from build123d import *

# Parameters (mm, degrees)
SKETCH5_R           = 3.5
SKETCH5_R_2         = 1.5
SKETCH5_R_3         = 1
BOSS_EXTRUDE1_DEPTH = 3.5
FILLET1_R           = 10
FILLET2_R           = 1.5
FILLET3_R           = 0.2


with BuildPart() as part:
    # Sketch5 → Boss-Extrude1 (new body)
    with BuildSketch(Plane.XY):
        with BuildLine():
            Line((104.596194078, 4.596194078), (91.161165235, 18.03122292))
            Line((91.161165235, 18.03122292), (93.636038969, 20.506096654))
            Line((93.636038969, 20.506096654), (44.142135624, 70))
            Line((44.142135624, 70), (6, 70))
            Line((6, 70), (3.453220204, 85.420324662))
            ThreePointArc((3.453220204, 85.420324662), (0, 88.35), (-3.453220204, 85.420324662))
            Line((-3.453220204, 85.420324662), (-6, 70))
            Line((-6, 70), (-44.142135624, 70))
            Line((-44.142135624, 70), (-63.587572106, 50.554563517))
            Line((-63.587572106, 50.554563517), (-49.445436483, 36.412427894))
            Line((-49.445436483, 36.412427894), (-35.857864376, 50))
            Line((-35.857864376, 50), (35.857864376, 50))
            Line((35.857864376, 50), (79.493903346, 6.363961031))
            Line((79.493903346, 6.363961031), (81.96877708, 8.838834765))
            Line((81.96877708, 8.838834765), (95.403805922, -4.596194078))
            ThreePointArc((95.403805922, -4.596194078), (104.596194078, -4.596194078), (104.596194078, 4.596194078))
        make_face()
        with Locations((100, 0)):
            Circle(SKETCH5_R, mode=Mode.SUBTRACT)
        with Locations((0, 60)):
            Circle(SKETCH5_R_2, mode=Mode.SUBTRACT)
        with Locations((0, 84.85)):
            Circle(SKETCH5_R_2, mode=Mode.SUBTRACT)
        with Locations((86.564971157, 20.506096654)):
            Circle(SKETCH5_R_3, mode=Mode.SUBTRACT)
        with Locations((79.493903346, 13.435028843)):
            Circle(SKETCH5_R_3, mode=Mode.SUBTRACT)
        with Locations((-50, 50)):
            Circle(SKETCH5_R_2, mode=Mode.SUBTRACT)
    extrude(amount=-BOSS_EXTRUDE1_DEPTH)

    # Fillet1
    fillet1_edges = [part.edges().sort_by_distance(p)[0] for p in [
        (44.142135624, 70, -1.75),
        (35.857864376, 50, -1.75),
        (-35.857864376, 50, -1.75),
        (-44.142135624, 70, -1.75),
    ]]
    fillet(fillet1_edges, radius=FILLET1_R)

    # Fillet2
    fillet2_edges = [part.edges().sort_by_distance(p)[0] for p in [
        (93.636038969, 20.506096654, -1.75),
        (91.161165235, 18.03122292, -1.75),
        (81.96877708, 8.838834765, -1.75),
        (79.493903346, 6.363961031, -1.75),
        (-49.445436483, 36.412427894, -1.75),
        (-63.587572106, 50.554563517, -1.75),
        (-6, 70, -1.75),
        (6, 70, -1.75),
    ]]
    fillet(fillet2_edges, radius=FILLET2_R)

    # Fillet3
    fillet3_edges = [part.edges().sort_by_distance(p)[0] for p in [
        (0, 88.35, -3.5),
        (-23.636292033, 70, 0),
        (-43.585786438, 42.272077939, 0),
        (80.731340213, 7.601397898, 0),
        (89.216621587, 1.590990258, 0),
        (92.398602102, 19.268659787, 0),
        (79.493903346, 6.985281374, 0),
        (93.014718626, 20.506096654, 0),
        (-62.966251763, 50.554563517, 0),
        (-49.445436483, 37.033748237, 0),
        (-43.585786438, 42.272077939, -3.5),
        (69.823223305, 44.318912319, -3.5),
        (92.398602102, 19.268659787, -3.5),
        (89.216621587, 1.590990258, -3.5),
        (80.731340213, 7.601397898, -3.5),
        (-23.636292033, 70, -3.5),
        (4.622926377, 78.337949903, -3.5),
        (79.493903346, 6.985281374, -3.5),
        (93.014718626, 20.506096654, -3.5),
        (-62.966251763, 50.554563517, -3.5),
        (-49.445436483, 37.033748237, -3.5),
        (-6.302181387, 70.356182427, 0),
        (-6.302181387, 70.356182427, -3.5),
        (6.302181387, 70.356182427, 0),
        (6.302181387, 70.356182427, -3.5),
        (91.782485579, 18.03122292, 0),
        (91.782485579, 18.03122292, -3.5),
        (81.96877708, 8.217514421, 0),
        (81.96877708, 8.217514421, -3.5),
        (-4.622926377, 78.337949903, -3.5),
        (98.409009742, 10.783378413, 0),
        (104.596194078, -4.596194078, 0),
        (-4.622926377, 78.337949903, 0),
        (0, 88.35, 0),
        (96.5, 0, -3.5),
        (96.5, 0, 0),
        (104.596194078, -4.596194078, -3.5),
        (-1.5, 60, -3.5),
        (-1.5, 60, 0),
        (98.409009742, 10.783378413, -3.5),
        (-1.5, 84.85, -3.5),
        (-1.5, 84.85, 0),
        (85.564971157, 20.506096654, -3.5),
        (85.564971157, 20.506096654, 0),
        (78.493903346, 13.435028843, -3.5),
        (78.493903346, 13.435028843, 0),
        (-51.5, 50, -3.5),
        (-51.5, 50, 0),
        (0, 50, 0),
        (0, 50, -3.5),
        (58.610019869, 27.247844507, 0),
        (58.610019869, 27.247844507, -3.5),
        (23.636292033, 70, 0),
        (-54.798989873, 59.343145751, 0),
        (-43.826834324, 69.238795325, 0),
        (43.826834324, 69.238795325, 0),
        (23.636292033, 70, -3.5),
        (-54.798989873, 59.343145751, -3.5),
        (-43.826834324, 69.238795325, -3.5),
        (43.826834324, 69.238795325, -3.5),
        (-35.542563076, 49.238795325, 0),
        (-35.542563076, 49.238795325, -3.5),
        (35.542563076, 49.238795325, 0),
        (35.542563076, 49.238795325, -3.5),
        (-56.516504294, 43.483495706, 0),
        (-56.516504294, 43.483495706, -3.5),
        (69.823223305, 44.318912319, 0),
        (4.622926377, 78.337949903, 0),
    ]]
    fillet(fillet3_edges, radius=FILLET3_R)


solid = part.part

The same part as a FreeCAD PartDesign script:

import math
import FreeCAD as App
import Part
import Sketcher

V = App.Vector
Q = App.Units.Quantity


def edges_at(feature, points):
    """Names of the edges that pass closest to the given points."""
    edges = feature.Shape.Edges
    near = lambda p: min(range(len(edges)), key=lambda i: edges[i].distToShape(Part.Vertex(*p))[0])
    return sorted({f"Edge{near(p) + 1}" for p in points})

doc = App.newDocument("Part")
params = doc.addObject("Spreadsheet::Sheet", "Params")
for row, (alias, value) in enumerate([
    ("sketch1_diameter", "7 mm"),
    ("sketch1_diameter2", "2 mm"),
    ("sketch1_diameter3", "3 mm"),
    ("sketch1_radius", "6.5 mm"),
    ("sketch1_length", "19 mm"),
    ("pad1_length", "3.5 mm"),
    ("fillet_radius", "10 mm"),
    ("fillet2_radius", "1.5 mm"),
    ("fillet3_radius", "0.2 mm"),
], start=1):
    params.set(f"A{row}", alias)
    params.set(f"B{row}", "=" + value)
    params.setAlias(f"B{row}", alias)

body = doc.addObject("PartDesign::Body", "Body")

# Sketch on XY plane
sketch1 = doc.addObject("Sketcher::SketchObject", "Sketch")
body.addObject(sketch1)
sketch1.AttachmentSupport = (doc.XY_Plane, [""])
sketch1.MapMode = "FlatFace"
sketch1.addGeometry([
    Part.LineSegment(V(104.596194, 4.596194, 0), V(91.161165, 18.031223, 0)),  # 0
    Part.LineSegment(V(91.161165, 18.031223, 0), V(93.636039, 20.506097, 0)),  # 1
    Part.LineSegment(V(93.636039, 20.506097, 0), V(44.142136, 70, 0)),  # 2
    Part.LineSegment(V(44.142136, 70, 0), V(6, 70, 0)),  # 3
    Part.LineSegment(V(6, 70, 0), V(3.45322, 85.420325, 0)),  # 4
    Part.ArcOfCircle(Part.Circle(V(0, 84.85, 0), V(0, 0, 1), 3.5), math.radians(9.378161), math.radians(170.621839)),  # 5
    Part.LineSegment(V(-3.45322, 85.420325, 0), V(-6, 70, 0)),  # 6
    Part.LineSegment(V(-6, 70, 0), V(-44.142136, 70, 0)),  # 7
    Part.LineSegment(V(-44.142136, 70, 0), V(-63.587572, 50.554564, 0)),  # 8
    Part.LineSegment(V(-63.587572, 50.554564, 0), V(-49.445436, 36.412428, 0)),  # 9
    Part.LineSegment(V(-49.445436, 36.412428, 0), V(-35.857864, 50, 0)),  # 10
    Part.LineSegment(V(-35.857864, 50, 0), V(35.857864, 50, 0)),  # 11
    Part.LineSegment(V(35.857864, 50, 0), V(79.493903, 6.363961, 0)),  # 12
    Part.LineSegment(V(79.493903, 6.363961, 0), V(81.968777, 8.838835, 0)),  # 13
    Part.LineSegment(V(81.968777, 8.838835, 0), V(95.403806, -4.596194, 0)),  # 14
    Part.ArcOfCircle(Part.Circle(V(100, 0, 0), V(0, 0, 1), 6.5), math.radians(-135), math.radians(45)),  # 15
    Part.Circle(V(100, 0, 0), V(0, 0, 1), 3.5),  # 16
    Part.Circle(V(79.493903, 13.435029, 0), V(0, 0, 1), 1),  # 17
    Part.Circle(V(86.564971, 20.506097, 0), V(0, 0, 1), 1),  # 18
    Part.Circle(V(-50, 50, 0), V(0, 0, 1), 1.5),  # 19
    Part.Circle(V(0, 60, 0), V(0, 0, 1), 1.5),  # 20
    Part.Circle(V(0, 84.85, 0), V(0, 0, 1), 1.5),  # 21
], False)
sketch1.addConstraint([
    Sketcher.Constraint("Coincident", 0, 2, 1, 1),
    Sketcher.Constraint("Coincident", 1, 2, 2, 1),
    Sketcher.Constraint("Coincident", 2, 2, 3, 1),
    Sketcher.Constraint("Coincident", 3, 2, 4, 1),
    Sketcher.Constraint("Tangent", 4, 2, 5, 1),
    Sketcher.Constraint("Tangent", 5, 2, 6, 1),
    Sketcher.Constraint("Coincident", 6, 2, 7, 1),
    Sketcher.Constraint("Coincident", 7, 2, 8, 1),
    Sketcher.Constraint("Coincident", 8, 2, 9, 1),
    Sketcher.Constraint("Coincident", 9, 2, 10, 1),
    Sketcher.Constraint("Coincident", 10, 2, 11, 1),
    Sketcher.Constraint("Coincident", 11, 2, 12, 1),
    Sketcher.Constraint("Coincident", 12, 2, 13, 1),
    Sketcher.Constraint("Coincident", 13, 2, 14, 1),
    Sketcher.Constraint("Tangent", 14, 2, 15, 1),
    Sketcher.Constraint("Tangent", 15, 2, 0, 1),
    Sketcher.Constraint("Horizontal", 3),
    Sketcher.Constraint("Horizontal", 7),
    Sketcher.Constraint("Horizontal", 11),
    Sketcher.Constraint("Coincident", 16, 3, 15, 3),
    Sketcher.Constraint("Coincident", 21, 3, 5, 3),
    Sketcher.Constraint("Equal", 5, 16),
    Sketcher.Constraint("Equal", 17, 18),
    Sketcher.Constraint("Equal", 19, 20),
    Sketcher.Constraint("Equal", 20, 21),
    Sketcher.Constraint("Symmetric", 4, 2, 5, 2, -2),
    Sketcher.Constraint("Symmetric", 2, 2, 7, 2, -2),
    Sketcher.Constraint("PointOnObject", 15, 3, -1),
    Sketcher.Constraint("PointOnObject", 20, 3, -2),
    Sketcher.Constraint("Perpendicular", 0, 1),
    Sketcher.Constraint("Perpendicular", 1, 2),
    Sketcher.Constraint("Perpendicular", 2, 8),
    Sketcher.Constraint("Perpendicular", 8, 9),
    Sketcher.Constraint("Perpendicular", 9, 10),
    Sketcher.Constraint("Perpendicular", 10, 12),
    Sketcher.Constraint("Perpendicular", 12, 13),
    Sketcher.Constraint("Perpendicular", 13, 14),
    Sketcher.Constraint("Horizontal", 18, 3, 1, 2),
    Sketcher.Constraint("Horizontal", 19, 3, 10, 2),
    Sketcher.Constraint("Vertical", 17, 3, 12, 2),
    Sketcher.Constraint("Equal", 1, 13),
    Sketcher.Constraint("Equal", 0, 14),
    Sketcher.Constraint("Diameter", 16, 7.0),
    Sketcher.Constraint("Diameter", 17, 2.0),
    Sketcher.Constraint("Diameter", 19, 3.0),
    Sketcher.Constraint("Radius", 15, 6.5),
    Sketcher.Constraint("Angle", 0, Q("135 deg")),
    Sketcher.Constraint("Distance", 0, 19.0),
    Sketcher.Constraint("Distance", 9, 20.0),
    Sketcher.Constraint("DistanceX", -1, 1, 15, 3, 100.0),
    Sketcher.Constraint("DistanceX", 19, 3, -1, 1, 50.0),
    Sketcher.Constraint("DistanceY", -1, 1, 19, 3, 50.0),
    Sketcher.Constraint("DistanceY", -1, 1, 20, 3, 60.0),
    Sketcher.Constraint("DistanceY", -1, 1, 2, 2, 70.0),
    Sketcher.Constraint("DistanceX", -1, 1, 3, 2, 6.0),
    Sketcher.Constraint("Distance", 1, 3.5),
    Sketcher.Constraint("Distance", 8, 27.5),
    Sketcher.Constraint("DistanceY", -1, 1, 5, 3, 84.85),
    Sketcher.Constraint("DistanceY", -1, 1, 17, 3, 13.435029),
    Sketcher.Constraint("DistanceX", -1, 1, 18, 3, 86.564971),
])
sketch1.setExpression("Constraints[42]", "Params.sketch1_diameter")
sketch1.setExpression("Constraints[43]", "Params.sketch1_diameter2")
sketch1.setExpression("Constraints[44]", "Params.sketch1_diameter3")
sketch1.setExpression("Constraints[45]", "Params.sketch1_radius")
sketch1.setExpression("Constraints[47]", "Params.sketch1_length")
pad1 = doc.addObject("PartDesign::Pad", "Pad")
body.addObject(pad1)
pad1.Profile = sketch1
pad1.setExpression("Length", "Params.pad1_length")
pad1.Reversed = True
doc.recompute()

fillet = doc.addObject("PartDesign::Fillet", "Fillet")
body.addObject(fillet)
fillet.Base = (pad1, edges_at(pad1, [
    (44.142, 70, -1.75),
    (35.858, 50, -1.75),
    (-35.858, 50, -1.75),
    (-44.142, 70, -1.75),
]))
fillet.setExpression("Radius", "Params.fillet_radius")
doc.recompute()

fillet2 = doc.addObject("PartDesign::Fillet", "Fillet001")
body.addObject(fillet2)
fillet2.Base = (fillet, edges_at(fillet, [
    (93.636, 20.506, -1.75),
    (91.161, 18.031, -1.75),
    (81.969, 8.839, -1.75),
    (79.494, 6.364, -1.75),
    (-49.445, 36.412, -1.75),
    (-63.588, 50.555, -1.75),
    (-6, 70, -1.75),
    (6, 70, -1.75),
]))
fillet2.setExpression("Radius", "Params.fillet2_radius")
doc.recompute()

fillet3 = doc.addObject("PartDesign::Fillet", "Fillet002")
body.addObject(fillet3)
fillet3.Base = (fillet2, edges_at(fillet2, [
    (0, 88.35, -3.5),
    (-23.636, 70, 0),
    (-43.586, 42.272, 0),
    (80.731, 7.601, 0),
    (89.217, 1.591, 0),
    (92.399, 19.269, 0),
    (79.494, 6.985, 0),
    (93.015, 20.506, 0),
    (-62.966, 50.555, 0),
    (-49.445, 37.034, 0),
    (-43.586, 42.272, -3.5),
    (69.823, 44.319, -3.5),
    (92.399, 19.269, -3.5),
    (89.217, 1.591, -3.5),
    (80.731, 7.601, -3.5),
    (-23.636, 70, -3.5),
    (4.623, 78.338, -3.5),
    (79.494, 6.985, -3.5),
    (93.015, 20.506, -3.5),
    (-62.966, 50.555, -3.5),
    (-49.445, 37.034, -3.5),
    (-6.302, 70.356, 0),
    (-6.302, 70.356, -3.5),
    (6.302, 70.356, 0),
    (6.302, 70.356, -3.5),
    (91.782, 18.031, 0),
    (91.782, 18.031, -3.5),
    (81.969, 8.218, 0),
    (81.969, 8.218, -3.5),
    (-4.623, 78.338, -3.5),
    (98.409, 10.783, 0),
    (104.596, -4.596, 0),
    (-4.623, 78.338, 0),
    (0, 88.35, 0),
    (96.5, 0, -3.5),
    (96.5, 0, 0),
    (104.596, -4.596, -3.5),
    (-1.5, 60, -3.5),
    (-1.5, 60, 0),
    (98.409, 10.783, -3.5),
    (-1.5, 84.85, -3.5),
    (-1.5, 84.85, 0),
    (85.565, 20.506, -3.5),
    (85.565, 20.506, 0),
    (78.494, 13.435, -3.5),
    (78.494, 13.435, 0),
    (-51.5, 50, -3.5),
    (-51.5, 50, 0),
    (0, 50, 0),
    (0, 50, -3.5),
    (58.61, 27.248, 0),
    (58.61, 27.248, -3.5),
    (23.636, 70, 0),
    (-54.799, 59.343, 0),
    (-43.827, 69.239, 0),
    (43.827, 69.239, 0),
    (23.636, 70, -3.5),
    (-54.799, 59.343, -3.5),
    (-43.827, 69.239, -3.5),
    (43.827, 69.239, -3.5),
    (-35.543, 49.239, 0),
    (-35.543, 49.239, -3.5),
    (35.543, 49.239, 0),
    (35.543, 49.239, -3.5),
    (-56.517, 43.483, 0),
    (-56.517, 43.483, -3.5),
    (69.823, 44.319, 0),
    (4.623, 78.338, 0),
]))
fillet3.setExpression("Radius", "Params.fillet3_radius")

doc.recompute()
